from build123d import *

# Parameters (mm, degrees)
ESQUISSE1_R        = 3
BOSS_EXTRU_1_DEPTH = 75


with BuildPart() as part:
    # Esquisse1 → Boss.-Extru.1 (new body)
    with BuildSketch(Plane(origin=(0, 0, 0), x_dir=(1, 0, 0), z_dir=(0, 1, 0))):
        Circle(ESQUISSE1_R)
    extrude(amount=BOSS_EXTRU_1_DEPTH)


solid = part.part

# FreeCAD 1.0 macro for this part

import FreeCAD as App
import Part
import Sketcher

V = App.Vector
Q = App.Units.Quantity

doc = App.newDocument("Part")
params = doc.addObject("Spreadsheet::Sheet", "Params")
for row, (alias, value) in enumerate([
    ("sketch1_diameter", "6 mm"),
    ("pad1_length", "75 mm"),
], start=1):
    params.set(f"A{row}", alias)
    params.set(f"B{row}", "=" + value)
    params.setAlias(f"B{row}", alias)

body = doc.addObject("PartDesign::Body", "Body")

sketch1 = doc.addObject("Sketcher::SketchObject", "Sketch")
body.addObject(sketch1)
sketch1.AttachmentSupport = (doc.XZ_Plane, [""])
sketch1.MapMode = "FlatFace"
sketch1.addGeometry(Part.Circle(V(0, 0, 0), V(0, 0, 1), 3), False)
sketch1.addConstraint(Sketcher.Constraint("Coincident", 0, 3, -1, 1))
sketch1.addConstraint(Sketcher.Constraint("Diameter", 0, Q("6 mm")))
sketch1.setExpression("Constraints[1]", "Params.sketch1_diameter")
pad1 = doc.addObject("PartDesign::Pad", "Pad")
body.addObject(pad1)
pad1.Profile = sketch1
pad1.setExpression("Length", "Params.pad1_length")
pad1.Reversed = True

doc.recompute()
